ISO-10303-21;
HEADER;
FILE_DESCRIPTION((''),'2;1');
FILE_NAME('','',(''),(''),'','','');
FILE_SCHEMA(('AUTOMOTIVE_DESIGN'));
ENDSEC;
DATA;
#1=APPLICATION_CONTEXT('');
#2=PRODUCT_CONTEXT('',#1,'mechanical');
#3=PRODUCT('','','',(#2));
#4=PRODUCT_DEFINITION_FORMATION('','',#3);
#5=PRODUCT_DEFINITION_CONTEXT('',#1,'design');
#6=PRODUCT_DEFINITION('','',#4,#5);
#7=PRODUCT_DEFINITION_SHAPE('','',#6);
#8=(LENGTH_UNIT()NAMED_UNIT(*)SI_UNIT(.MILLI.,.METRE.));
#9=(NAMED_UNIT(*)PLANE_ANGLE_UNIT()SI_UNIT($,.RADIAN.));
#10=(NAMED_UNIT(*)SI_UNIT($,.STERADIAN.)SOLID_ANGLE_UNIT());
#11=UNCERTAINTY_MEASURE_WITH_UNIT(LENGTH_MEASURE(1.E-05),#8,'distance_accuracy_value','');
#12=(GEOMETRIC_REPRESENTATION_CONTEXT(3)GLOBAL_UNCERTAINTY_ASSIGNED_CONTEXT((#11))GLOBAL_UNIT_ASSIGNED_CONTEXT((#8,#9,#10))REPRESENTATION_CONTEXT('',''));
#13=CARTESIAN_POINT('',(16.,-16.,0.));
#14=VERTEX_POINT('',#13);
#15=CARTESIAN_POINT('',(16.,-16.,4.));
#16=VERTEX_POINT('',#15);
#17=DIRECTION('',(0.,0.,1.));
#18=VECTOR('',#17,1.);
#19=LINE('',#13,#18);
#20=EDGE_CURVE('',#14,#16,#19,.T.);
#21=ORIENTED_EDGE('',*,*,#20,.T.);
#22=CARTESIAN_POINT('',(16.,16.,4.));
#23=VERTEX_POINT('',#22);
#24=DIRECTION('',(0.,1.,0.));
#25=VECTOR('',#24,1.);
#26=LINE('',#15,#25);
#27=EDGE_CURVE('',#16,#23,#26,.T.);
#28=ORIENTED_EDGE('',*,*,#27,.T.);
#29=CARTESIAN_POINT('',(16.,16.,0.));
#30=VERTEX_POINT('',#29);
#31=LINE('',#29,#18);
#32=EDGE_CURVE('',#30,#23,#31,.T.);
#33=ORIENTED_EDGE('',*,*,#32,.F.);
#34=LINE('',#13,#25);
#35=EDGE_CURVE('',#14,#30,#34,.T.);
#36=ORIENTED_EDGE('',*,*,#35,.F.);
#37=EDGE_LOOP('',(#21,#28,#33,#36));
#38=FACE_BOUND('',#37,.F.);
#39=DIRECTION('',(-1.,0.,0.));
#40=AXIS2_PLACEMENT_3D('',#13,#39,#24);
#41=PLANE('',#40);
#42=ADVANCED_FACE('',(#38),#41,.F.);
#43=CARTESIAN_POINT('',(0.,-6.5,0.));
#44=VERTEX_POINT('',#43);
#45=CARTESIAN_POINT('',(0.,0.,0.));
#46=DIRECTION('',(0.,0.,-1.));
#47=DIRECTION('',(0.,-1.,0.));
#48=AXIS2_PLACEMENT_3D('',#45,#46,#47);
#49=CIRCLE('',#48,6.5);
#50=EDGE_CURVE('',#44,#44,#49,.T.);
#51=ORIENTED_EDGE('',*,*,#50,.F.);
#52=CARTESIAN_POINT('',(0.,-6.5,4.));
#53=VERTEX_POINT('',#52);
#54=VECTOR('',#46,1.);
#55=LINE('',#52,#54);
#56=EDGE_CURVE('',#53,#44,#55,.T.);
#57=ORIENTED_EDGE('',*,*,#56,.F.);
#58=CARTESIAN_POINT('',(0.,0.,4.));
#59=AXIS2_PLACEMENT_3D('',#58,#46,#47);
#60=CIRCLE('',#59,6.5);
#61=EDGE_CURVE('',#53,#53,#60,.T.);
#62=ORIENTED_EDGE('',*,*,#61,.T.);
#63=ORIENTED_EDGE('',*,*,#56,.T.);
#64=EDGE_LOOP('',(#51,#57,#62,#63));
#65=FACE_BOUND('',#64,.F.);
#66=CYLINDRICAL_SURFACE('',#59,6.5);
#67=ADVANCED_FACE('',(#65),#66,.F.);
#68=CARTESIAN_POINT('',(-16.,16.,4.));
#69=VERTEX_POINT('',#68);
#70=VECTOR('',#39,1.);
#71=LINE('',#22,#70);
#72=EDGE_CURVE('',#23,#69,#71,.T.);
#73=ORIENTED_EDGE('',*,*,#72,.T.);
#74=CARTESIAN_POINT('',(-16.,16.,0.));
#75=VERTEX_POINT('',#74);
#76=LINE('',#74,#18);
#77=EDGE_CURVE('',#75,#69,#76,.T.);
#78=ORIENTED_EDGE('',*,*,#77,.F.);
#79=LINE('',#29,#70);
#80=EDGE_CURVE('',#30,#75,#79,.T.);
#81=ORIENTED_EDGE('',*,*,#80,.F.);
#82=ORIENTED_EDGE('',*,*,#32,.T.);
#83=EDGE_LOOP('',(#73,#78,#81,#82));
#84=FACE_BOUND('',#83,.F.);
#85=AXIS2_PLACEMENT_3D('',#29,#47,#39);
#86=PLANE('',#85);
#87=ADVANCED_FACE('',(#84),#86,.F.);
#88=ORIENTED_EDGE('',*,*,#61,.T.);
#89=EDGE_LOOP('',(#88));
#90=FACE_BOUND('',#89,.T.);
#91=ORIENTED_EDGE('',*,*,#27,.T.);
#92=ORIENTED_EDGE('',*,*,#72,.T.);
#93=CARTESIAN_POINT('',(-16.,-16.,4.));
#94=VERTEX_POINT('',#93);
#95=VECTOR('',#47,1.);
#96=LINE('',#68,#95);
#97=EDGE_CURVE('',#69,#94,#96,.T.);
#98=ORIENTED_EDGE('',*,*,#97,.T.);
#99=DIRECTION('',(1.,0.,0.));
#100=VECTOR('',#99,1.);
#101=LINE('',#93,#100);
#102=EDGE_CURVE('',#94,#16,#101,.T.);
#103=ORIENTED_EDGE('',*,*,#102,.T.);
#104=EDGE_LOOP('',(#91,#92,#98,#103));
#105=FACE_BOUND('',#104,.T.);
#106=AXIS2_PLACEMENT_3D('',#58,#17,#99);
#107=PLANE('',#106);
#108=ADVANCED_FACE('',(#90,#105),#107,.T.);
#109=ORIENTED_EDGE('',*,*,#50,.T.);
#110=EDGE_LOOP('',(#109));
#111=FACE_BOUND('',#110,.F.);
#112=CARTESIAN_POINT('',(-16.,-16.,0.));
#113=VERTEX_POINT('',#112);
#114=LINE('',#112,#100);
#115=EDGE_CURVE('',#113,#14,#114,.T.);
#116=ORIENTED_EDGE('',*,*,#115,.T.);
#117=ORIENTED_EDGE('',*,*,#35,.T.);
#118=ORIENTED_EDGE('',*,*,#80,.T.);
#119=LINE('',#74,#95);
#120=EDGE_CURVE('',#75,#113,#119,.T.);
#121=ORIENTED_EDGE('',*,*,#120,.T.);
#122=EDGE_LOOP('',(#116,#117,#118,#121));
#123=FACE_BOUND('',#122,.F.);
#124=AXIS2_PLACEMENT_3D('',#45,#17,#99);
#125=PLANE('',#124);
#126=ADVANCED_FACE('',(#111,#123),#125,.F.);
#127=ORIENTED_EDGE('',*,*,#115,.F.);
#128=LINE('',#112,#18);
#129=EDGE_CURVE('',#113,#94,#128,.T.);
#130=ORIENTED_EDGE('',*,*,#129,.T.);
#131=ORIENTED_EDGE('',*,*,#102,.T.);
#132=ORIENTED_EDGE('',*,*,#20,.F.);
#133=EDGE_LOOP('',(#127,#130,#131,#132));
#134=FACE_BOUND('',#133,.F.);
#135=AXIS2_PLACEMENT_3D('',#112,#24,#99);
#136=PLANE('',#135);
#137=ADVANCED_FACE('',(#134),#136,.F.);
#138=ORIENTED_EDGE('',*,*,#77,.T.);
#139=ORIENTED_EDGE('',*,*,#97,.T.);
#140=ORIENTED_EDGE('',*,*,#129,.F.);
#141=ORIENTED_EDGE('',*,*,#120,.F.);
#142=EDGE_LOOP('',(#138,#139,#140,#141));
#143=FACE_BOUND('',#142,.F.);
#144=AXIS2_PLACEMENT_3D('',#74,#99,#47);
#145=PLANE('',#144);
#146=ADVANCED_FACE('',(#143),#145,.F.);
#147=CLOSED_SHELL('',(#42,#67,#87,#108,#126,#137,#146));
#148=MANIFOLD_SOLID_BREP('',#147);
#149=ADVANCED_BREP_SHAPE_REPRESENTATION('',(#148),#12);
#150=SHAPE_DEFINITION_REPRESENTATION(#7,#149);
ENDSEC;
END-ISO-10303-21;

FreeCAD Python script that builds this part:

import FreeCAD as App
import Part
import Sketcher
Q = App.Units.Quantity

doc = App.newDocument("Part")
body = doc.addObject("PartDesign::Body", "Body")

# Sketch on XY plane
sketch1 = body.newObject("Sketcher::SketchObject", "Sketch")
sketch1.AttachmentSupport = (doc.getObject("XY_Plane"), [""])
sketch1.MapMode = "FlatFace"
sketch1.addGeometry([
    Part.LineSegment(App.Vector(-16, 16, 0), App.Vector(-16, -16, 0)),
    Part.LineSegment(App.Vector(-16, -16, 0), App.Vector(16, -16, 0)),
    Part.LineSegment(App.Vector(16, -16, 0), App.Vector(16, 16, 0)),
    Part.LineSegment(App.Vector(16, 16, 0), App.Vector(-16, 16, 0)),
], False)
sketch1.addConstraint([
    Sketcher.Constraint("Coincident", 0, 2, 1, 1),
    Sketcher.Constraint("Coincident", 1, 2, 2, 1),
    Sketcher.Constraint("Coincident", 2, 2, 3, 1),
    Sketcher.Constraint("Coincident", 3, 2, 0, 1),
    Sketcher.Constraint("Vertical", 0),
    Sketcher.Constraint("Horizontal", 1),
    Sketcher.Constraint("Vertical", 2),
    Sketcher.Constraint("Horizontal", 3),
    Sketcher.Constraint("Symmetric", 0, 2, 2, 2, -1, 1),
    Sketcher.Constraint("Equal", 3, 0),
    Sketcher.Constraint("DistanceX", 1, 1, 1, 2, Q("32 mm")),
])
pad1 = body.newObject("PartDesign::Pad", "Pad")
pad1.Profile = sketch1
pad1.Length = 4

# Sketch on XY plane
sketch2 = body.newObject("Sketcher::SketchObject", "Sketch001")
sketch2.AttachmentSupport = (doc.getObject("XY_Plane"), [""])
sketch2.MapMode = "FlatFace"
sketch2.AttachmentOffset = App.Placement(App.Vector(0, 0, 4), App.Rotation())
sketch2.addGeometry(Part.Circle(App.Vector(0, 0, 0), App.Vector(0, 0, 1), 6), False)
sketch2.addConstraint([
    Sketcher.Constraint("Coincident", 0, 3, -1, 1),
    Sketcher.Constraint("Diameter", 0, Q("13 mm")),
])
doc.recompute()
hole = body.newObject("PartDesign::Hole", "Hole")
hole.Profile = sketch2
hole.ThreadType = "None"
hole.Diameter = 13
hole.DepthType = "ThroughAll"

doc.recompute()
